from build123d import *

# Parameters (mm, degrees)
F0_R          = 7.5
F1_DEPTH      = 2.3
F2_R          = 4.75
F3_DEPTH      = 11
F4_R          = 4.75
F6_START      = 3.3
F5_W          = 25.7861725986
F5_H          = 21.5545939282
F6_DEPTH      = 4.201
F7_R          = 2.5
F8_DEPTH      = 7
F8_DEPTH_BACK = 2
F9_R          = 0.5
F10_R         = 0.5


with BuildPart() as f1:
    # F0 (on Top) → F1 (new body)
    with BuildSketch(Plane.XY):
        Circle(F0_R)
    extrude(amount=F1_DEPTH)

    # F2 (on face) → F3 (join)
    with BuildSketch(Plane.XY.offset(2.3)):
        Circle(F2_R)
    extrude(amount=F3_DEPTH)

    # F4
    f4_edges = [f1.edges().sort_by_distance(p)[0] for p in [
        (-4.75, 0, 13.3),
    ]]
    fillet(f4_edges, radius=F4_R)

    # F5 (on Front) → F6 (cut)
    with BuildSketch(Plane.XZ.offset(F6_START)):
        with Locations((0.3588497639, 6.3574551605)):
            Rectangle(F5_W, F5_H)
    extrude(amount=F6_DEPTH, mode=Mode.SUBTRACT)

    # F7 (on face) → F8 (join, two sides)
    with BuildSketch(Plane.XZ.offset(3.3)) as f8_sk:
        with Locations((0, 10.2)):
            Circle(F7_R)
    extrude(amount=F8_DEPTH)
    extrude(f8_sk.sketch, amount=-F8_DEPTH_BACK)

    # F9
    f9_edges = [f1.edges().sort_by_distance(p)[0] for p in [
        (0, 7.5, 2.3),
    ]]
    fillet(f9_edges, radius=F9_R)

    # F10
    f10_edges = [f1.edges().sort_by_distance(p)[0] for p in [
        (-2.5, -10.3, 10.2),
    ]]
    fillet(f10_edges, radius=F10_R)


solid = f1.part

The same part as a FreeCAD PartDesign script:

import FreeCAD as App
import Part
import Sketcher


def edges_at(feature, points):
    """Names of the edges that pass closest to the given points."""
    edges = feature.Shape.Edges
    near = lambda p: min(range(len(edges)), key=lambda i: edges[i].distToShape(Part.Vertex(*p))[0])
    return sorted({f"Edge{near(p) + 1}" for p in points})

doc = App.newDocument("Part")
body = doc.addObject("PartDesign::Body", "Body")

# Sketch on XY plane
sketch1 = doc.addObject("Sketcher::SketchObject", "Sketch")
body.addObject(sketch1)
sketch1.AttachmentSupport = (doc.XY_Plane, [""])
sketch1.MapMode = "FlatFace"
sketch1.addGeometry(Part.Circle(App.Vector(0, 0, 0), App.Vector(0, 0, 1), 7.5), False)
sketch1.addConstraint([
    Sketcher.Constraint("Coincident", 0, 3, -1, 1),
    Sketcher.Constraint("Diameter", 0, 15.0),
])
pad1 = doc.addObject("PartDesign::Pad", "Pad")
body.addObject(pad1)
pad1.Profile = sketch1
pad1.Length = 2.3

# Sketch on XY plane
sketch2 = doc.addObject("Sketcher::SketchObject", "Sketch001")
body.addObject(sketch2)
sketch2.AttachmentSupport = (doc.XY_Plane, [""])
sketch2.MapMode = "FlatFace"
sketch2.AttachmentOffset = App.Placement(App.Vector(0, 0, 2.3), App.Rotation())
sketch2.addGeometry(Part.Circle(App.Vector(0, 0, 0), App.Vector(0, 0, 1), 4.75), False)
sketch2.addConstraint([
    Sketcher.Constraint("Coincident", 0, 3, -1, 1),
    Sketcher.Constraint("Diameter", 0, 9.5),
])
pad2 = doc.addObject("PartDesign::Pad", "Pad001")
body.addObject(pad2)
pad2.Profile = sketch2
pad2.Length = 11
doc.recompute()

fillet = doc.addObject("PartDesign::Fillet", "Fillet")
body.addObject(fillet)
fillet.Base = (pad2, edges_at(pad2, [(-4.75, 0, 13.3)]))
fillet.Radius = 4.75

# Sketch on XZ plane
sketch3 = doc.addObject("Sketcher::SketchObject", "Sketch002")
body.addObject(sketch3)
sketch3.AttachmentSupport = (doc.XZ_Plane, [""])
sketch3.MapMode = "FlatFace"
sketch3.AttachmentOffset = App.Placement(App.Vector(0, 0, 3.3), App.Rotation())
sketch3.addGeometry([
    Part.LineSegment(App.Vector(-12.534237, 17.134752, 0), App.Vector(-12.534237, -4.419842, 0)),
    Part.LineSegment(App.Vector(-12.534237, -4.419842, 0), App.Vector(13.251936, -4.419842, 0)),
    Part.LineSegment(App.Vector(13.251936, -4.419842, 0), App.Vector(13.251936, 17.134752, 0)),
    Part.LineSegment(App.Vector(13.251936, 17.134752, 0), App.Vector(-12.534237, 17.134752, 0)),
], False)
sketch3.addConstraint([
    Sketcher.Constraint("Coincident", 0, 2, 1, 1),
    Sketcher.Constraint("Coincident", 1, 2, 2, 1),
    Sketcher.Constraint("Coincident", 2, 2, 3, 1),
    Sketcher.Constraint("Coincident", 3, 2, 0, 1),
    Sketcher.Constraint("Vertical", 0),
    Sketcher.Constraint("Horizontal", 1),
    Sketcher.Constraint("Vertical", 2),
    Sketcher.Constraint("Horizontal", 3),
    Sketcher.Constraint("DistanceX", 1, 1, 1, 2, 25.786173),
    Sketcher.Constraint("DistanceY", 0, 2, 0, 1, 21.554594),
    Sketcher.Constraint("DistanceY", 0, 2, -1, 1, 4.419842),
    Sketcher.Constraint("DistanceX", 0, 2, -1, 1, 12.534237),
])
pocket1 = doc.addObject("PartDesign::Pocket", "Pocket")
body.addObject(pocket1)
pocket1.Profile = sketch3
pocket1.Length = 4.201
pocket1.Reversed = True

# Sketch on XZ plane
sketch4 = doc.addObject("Sketcher::SketchObject", "Sketch003")
body.addObject(sketch4)
sketch4.AttachmentSupport = (doc.XZ_Plane, [""])
sketch4.MapMode = "FlatFace"
sketch4.AttachmentOffset = App.Placement(App.Vector(0, 0, 3.3), App.Rotation())
sketch4.addGeometry(Part.Circle(App.Vector(0, 10.2, 0), App.Vector(0, 0, 1), 2.5), False)
sketch4.addConstraint([
    Sketcher.Constraint("PointOnObject", 0, 3, -2),
    Sketcher.Constraint("Diameter", 0, 5.0),
    Sketcher.Constraint("DistanceY", -1, 1, 0, 3, 10.2),
])
pad3 = doc.addObject("PartDesign::Pad", "Pad002")
body.addObject(pad3)
pad3.Profile = sketch4
pad3.Type = "TwoLengths"
pad3.Length = 7
pad3.Length2 = 2
doc.recompute()

fillet2 = doc.addObject("PartDesign::Fillet", "Fillet001")
body.addObject(fillet2)
fillet2.Base = (pad3, edges_at(pad3, [(0, 7.5, 2.3)]))
fillet2.Radius = 0.5
doc.recompute()

fillet3 = doc.addObject("PartDesign::Fillet", "Fillet002")
body.addObject(fillet3)
fillet3.Base = (fillet2, edges_at(fillet2, [(-2.5, -10.3, 10.2)]))
fillet3.Radius = 0.5

doc.recompute()
